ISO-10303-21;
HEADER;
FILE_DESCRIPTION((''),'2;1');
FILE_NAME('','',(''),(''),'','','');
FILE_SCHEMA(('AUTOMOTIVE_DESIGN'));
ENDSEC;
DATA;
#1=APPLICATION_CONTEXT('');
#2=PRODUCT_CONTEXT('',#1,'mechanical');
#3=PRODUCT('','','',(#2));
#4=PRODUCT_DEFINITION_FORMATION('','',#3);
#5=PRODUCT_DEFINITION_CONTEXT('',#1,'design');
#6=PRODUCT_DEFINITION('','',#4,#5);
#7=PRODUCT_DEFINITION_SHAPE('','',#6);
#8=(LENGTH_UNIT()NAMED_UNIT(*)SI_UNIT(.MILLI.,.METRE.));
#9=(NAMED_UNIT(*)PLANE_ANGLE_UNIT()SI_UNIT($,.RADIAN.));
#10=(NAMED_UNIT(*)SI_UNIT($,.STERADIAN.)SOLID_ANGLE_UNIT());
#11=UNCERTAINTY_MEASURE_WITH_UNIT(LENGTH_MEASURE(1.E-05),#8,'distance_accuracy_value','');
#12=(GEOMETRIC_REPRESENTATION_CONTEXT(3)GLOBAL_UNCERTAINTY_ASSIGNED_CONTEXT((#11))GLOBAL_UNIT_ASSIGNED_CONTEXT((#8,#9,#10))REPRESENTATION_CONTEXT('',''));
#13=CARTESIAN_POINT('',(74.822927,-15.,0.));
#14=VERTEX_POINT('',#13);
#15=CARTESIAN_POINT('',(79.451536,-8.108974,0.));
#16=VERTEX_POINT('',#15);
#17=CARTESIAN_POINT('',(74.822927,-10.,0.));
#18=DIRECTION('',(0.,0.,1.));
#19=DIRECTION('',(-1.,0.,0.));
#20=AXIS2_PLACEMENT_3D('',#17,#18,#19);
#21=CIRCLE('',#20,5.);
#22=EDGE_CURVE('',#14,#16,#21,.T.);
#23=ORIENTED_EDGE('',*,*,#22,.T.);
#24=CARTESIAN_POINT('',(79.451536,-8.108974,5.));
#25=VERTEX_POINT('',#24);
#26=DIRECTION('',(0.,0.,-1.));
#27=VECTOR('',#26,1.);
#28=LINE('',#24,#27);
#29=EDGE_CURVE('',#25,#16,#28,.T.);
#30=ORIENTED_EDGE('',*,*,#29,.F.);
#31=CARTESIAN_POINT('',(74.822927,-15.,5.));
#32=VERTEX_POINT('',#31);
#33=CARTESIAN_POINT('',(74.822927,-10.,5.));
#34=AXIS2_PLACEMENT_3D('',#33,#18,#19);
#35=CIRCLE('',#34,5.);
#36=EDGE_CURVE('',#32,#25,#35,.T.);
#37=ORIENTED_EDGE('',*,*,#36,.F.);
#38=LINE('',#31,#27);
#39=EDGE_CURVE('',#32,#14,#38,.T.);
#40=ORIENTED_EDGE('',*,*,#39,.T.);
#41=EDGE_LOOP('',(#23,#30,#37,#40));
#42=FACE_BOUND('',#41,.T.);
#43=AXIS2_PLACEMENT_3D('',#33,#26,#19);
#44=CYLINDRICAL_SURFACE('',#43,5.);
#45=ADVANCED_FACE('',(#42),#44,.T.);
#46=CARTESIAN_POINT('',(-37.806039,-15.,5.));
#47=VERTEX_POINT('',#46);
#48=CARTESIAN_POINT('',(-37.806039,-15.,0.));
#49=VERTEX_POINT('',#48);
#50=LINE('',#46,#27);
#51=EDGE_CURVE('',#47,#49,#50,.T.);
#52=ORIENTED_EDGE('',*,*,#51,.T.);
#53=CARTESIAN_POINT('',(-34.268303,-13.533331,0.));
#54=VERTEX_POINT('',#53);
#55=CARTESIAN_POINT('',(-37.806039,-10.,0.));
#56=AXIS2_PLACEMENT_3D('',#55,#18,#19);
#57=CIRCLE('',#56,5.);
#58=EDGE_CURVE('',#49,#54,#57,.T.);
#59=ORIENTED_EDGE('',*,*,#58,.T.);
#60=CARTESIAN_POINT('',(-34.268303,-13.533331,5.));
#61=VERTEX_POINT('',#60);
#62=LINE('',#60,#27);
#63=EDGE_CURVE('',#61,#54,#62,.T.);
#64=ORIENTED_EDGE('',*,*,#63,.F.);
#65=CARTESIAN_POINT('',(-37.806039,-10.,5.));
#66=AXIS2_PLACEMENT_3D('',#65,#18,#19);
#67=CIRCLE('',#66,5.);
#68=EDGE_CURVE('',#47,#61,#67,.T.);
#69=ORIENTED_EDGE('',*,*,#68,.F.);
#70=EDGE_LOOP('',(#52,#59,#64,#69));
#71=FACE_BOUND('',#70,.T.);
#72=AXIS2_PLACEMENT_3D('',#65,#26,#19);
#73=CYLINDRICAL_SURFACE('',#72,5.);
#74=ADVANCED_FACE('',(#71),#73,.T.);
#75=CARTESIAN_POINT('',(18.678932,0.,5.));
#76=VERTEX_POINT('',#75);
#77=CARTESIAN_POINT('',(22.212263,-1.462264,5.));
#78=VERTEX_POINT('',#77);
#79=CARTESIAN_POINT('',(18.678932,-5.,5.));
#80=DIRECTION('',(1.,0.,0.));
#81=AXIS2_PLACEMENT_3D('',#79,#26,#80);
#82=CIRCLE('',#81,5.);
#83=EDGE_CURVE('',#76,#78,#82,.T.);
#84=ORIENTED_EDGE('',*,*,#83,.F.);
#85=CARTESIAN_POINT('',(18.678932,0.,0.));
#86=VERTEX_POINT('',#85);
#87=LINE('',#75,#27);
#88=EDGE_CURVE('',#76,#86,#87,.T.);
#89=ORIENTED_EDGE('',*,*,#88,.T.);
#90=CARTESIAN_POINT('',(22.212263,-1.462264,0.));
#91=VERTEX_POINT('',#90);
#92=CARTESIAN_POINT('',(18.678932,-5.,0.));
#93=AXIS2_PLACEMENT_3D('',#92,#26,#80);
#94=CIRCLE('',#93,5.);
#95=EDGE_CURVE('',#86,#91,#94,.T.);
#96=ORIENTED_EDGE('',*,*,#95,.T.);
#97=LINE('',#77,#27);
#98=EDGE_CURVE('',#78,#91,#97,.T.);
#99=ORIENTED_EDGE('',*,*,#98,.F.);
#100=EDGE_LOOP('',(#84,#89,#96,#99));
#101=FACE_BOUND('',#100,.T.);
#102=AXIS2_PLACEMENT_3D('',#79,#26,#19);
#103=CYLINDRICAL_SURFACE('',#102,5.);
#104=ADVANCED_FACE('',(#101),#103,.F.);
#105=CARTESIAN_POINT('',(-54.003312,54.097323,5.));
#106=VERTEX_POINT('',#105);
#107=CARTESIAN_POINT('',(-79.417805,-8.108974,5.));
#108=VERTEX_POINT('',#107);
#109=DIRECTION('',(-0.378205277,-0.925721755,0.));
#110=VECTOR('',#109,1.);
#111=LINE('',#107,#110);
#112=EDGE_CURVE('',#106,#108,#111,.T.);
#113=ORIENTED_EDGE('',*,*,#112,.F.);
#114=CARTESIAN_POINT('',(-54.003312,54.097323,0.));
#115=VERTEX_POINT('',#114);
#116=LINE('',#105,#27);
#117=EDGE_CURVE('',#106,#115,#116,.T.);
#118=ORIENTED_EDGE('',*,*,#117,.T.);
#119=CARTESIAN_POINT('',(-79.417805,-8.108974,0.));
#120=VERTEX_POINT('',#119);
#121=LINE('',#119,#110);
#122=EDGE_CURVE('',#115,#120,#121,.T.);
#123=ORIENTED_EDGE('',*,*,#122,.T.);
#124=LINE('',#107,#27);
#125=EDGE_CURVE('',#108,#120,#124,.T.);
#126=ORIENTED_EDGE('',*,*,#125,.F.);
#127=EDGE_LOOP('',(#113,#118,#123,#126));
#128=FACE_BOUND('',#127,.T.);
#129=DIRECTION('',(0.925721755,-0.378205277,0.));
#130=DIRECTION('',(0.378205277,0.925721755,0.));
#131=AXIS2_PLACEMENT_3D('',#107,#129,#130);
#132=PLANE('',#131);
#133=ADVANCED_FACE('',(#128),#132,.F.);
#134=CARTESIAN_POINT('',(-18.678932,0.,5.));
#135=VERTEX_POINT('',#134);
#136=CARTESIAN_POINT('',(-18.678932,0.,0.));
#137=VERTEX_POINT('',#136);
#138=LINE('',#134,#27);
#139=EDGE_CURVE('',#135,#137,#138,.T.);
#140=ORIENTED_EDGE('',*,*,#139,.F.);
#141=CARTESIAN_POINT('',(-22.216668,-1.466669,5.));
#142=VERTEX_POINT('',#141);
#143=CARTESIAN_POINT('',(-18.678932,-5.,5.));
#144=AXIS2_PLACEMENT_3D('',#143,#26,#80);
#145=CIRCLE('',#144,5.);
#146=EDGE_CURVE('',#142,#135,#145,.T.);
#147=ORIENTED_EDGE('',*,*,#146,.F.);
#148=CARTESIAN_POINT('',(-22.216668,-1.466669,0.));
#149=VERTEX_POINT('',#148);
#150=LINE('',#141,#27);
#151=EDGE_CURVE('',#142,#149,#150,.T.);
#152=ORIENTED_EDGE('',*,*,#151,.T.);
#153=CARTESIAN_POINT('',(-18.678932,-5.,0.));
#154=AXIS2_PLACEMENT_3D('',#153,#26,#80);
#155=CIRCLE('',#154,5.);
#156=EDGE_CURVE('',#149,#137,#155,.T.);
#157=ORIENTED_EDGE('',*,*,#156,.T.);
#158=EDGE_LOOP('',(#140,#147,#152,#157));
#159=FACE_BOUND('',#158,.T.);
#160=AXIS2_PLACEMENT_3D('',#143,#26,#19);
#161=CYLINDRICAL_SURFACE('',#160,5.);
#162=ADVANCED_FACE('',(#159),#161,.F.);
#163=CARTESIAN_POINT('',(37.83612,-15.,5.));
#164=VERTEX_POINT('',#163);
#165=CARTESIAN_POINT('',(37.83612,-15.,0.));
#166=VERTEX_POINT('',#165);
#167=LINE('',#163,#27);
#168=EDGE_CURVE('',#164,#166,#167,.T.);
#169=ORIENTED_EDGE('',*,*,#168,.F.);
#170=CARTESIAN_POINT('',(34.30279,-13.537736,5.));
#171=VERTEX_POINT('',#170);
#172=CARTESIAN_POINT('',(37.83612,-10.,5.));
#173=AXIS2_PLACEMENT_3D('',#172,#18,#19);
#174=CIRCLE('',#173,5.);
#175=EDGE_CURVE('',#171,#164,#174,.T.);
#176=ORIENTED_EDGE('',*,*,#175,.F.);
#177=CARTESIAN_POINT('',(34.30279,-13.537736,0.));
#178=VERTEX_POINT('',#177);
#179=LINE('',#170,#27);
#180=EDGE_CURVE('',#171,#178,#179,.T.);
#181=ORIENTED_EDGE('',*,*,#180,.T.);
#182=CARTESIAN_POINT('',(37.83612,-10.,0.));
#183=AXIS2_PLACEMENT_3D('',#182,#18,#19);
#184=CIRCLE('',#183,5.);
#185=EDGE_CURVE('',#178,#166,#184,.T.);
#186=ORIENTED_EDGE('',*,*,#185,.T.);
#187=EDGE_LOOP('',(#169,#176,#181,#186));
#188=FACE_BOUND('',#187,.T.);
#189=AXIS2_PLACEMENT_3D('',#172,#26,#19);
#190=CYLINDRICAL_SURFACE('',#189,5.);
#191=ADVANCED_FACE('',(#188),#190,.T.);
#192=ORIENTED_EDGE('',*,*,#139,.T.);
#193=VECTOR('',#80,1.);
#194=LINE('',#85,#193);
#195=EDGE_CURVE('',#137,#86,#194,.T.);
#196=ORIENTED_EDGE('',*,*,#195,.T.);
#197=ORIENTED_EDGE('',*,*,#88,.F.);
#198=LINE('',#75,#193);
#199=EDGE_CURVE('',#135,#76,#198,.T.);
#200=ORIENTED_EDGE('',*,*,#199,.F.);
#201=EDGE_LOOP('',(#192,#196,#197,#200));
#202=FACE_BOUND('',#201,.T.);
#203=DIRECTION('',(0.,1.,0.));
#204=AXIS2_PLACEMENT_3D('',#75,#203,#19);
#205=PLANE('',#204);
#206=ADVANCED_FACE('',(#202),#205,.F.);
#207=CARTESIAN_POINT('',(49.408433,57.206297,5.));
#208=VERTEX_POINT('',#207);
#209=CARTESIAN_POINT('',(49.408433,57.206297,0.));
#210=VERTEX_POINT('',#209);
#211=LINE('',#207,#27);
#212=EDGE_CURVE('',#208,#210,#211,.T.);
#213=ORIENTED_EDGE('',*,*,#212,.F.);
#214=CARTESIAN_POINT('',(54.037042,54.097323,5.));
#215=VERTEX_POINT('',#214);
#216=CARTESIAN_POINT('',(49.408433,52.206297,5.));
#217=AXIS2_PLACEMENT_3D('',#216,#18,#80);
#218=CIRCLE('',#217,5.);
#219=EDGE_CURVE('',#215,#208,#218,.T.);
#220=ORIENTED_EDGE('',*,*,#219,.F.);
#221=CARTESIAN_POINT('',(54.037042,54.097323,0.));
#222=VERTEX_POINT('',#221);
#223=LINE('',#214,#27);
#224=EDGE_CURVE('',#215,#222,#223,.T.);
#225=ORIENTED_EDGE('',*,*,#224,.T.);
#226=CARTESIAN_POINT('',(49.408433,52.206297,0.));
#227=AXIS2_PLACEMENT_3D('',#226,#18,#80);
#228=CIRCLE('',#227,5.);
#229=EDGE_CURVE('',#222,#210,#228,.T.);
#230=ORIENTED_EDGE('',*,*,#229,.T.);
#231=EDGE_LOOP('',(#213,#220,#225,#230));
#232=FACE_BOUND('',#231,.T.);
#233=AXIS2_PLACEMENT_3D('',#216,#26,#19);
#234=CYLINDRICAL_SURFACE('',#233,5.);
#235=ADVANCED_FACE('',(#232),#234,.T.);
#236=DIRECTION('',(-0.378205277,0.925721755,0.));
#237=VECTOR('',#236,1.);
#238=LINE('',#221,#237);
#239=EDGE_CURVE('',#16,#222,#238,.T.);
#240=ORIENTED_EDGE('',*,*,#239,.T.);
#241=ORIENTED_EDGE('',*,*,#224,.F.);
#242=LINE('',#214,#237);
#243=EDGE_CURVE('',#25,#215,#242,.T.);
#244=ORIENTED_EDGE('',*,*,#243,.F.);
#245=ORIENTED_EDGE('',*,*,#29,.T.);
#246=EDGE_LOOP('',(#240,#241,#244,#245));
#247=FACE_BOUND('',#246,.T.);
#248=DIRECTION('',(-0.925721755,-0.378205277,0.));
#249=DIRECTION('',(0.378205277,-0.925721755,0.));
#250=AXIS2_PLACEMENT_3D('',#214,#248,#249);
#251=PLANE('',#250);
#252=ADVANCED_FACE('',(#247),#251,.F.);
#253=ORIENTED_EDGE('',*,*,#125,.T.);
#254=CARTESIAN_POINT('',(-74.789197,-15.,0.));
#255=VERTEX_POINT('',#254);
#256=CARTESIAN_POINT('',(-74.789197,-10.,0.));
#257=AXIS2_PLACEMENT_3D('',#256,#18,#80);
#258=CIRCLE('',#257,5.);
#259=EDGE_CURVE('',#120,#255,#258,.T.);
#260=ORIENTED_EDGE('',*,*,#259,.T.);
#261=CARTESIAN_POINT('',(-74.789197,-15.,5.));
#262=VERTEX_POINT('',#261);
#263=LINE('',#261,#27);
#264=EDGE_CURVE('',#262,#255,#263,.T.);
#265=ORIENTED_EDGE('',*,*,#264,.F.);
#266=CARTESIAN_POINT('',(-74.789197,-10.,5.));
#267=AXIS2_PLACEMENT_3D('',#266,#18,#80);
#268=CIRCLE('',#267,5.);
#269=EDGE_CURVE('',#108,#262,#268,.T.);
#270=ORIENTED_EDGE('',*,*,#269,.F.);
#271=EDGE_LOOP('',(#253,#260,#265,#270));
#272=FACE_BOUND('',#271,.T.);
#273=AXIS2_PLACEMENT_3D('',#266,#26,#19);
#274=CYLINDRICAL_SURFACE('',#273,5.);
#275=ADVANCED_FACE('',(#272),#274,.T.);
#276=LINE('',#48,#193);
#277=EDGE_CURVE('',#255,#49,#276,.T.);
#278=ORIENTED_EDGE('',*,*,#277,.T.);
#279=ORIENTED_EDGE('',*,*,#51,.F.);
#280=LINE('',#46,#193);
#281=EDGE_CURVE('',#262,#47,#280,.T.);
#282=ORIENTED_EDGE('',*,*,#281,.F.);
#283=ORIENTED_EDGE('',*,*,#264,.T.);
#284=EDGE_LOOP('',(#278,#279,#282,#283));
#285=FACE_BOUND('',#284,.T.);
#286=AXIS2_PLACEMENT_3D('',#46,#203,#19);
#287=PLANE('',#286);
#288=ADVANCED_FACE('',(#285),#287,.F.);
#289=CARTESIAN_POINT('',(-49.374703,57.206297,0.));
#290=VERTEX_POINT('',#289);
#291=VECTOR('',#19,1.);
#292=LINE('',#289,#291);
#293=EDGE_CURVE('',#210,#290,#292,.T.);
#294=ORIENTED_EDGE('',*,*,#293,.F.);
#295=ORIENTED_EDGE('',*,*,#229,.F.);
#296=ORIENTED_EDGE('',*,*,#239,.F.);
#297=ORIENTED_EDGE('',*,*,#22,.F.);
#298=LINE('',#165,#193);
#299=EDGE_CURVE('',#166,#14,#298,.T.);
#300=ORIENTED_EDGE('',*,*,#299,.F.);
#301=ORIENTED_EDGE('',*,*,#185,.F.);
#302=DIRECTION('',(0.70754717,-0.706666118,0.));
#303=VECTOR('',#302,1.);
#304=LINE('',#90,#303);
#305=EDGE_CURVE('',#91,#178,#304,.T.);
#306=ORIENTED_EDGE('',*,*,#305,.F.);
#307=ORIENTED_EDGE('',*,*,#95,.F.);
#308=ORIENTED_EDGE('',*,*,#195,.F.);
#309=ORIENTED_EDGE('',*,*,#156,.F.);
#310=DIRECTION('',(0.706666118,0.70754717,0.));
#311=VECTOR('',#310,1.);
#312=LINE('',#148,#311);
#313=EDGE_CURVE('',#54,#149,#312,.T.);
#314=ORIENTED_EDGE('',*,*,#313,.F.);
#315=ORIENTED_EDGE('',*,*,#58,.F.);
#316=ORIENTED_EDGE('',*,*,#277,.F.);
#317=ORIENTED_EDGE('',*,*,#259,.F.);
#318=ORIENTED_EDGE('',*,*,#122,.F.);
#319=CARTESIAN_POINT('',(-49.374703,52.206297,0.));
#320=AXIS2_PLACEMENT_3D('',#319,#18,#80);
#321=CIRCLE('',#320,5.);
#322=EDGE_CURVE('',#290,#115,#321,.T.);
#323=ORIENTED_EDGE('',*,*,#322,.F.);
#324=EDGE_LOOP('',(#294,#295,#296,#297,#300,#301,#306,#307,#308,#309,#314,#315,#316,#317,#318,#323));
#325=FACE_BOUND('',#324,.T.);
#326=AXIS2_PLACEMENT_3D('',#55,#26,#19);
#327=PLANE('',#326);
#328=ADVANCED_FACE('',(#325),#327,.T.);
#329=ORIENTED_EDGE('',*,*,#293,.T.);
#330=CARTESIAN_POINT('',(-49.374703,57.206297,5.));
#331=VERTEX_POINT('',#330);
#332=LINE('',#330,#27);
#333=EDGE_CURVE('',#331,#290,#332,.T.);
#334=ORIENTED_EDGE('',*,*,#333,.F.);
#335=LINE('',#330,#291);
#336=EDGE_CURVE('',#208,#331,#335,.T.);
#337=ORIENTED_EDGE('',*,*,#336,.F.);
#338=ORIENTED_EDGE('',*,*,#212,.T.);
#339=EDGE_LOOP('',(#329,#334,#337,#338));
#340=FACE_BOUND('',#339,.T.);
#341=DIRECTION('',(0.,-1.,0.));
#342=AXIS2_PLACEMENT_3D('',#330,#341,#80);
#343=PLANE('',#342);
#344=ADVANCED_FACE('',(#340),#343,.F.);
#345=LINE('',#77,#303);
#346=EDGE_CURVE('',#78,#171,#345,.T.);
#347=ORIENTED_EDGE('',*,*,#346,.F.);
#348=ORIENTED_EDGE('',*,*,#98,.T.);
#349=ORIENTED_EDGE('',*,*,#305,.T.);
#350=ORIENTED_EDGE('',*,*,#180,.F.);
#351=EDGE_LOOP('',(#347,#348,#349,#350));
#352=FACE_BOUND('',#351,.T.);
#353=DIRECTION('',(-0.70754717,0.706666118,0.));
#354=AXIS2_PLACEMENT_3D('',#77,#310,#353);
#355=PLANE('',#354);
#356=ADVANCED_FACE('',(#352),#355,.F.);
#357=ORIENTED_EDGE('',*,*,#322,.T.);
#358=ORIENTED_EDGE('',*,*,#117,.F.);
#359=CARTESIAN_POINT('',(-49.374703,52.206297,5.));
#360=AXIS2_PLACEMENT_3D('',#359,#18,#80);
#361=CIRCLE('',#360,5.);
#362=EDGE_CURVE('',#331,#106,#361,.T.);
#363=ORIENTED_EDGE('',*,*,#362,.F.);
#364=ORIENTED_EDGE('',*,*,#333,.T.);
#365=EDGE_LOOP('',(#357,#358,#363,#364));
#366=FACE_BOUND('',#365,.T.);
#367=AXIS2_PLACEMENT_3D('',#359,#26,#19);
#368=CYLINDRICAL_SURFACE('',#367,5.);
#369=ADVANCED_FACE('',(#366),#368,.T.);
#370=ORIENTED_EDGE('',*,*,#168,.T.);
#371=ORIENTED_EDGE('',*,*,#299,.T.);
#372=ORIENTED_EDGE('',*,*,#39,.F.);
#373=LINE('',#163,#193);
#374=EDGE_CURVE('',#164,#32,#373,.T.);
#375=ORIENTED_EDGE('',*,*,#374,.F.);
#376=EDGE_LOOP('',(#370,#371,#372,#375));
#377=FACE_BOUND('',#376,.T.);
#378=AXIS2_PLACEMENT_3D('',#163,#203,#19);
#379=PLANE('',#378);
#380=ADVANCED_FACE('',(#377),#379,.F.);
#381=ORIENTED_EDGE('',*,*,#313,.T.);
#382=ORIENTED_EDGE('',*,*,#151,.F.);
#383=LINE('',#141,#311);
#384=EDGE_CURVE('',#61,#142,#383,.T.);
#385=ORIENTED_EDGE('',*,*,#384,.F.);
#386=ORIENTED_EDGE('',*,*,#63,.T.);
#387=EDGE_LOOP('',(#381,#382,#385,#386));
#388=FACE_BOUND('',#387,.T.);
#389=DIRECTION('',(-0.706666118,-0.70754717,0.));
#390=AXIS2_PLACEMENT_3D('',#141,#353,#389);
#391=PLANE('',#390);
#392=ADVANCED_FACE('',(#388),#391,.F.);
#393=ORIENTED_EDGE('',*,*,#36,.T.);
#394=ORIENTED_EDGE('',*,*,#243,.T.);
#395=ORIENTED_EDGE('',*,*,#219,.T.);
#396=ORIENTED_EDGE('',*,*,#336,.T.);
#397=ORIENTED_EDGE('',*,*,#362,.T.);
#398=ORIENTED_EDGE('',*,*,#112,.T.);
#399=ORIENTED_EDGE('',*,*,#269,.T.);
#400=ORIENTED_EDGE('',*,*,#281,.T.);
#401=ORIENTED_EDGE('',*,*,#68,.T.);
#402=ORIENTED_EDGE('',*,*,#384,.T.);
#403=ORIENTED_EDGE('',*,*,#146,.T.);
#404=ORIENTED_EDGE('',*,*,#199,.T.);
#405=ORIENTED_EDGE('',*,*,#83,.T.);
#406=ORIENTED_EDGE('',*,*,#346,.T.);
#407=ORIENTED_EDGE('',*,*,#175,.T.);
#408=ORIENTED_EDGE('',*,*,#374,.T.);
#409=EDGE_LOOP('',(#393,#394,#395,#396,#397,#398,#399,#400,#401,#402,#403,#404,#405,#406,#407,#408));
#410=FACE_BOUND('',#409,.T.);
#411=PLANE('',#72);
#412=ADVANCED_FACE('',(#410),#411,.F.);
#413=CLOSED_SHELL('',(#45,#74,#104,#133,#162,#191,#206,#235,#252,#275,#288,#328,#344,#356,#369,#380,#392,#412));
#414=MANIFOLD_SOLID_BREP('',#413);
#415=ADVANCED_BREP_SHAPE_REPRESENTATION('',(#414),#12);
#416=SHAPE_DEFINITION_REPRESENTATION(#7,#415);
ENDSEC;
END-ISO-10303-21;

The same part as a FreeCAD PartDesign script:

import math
import FreeCAD as App
import Part
import Sketcher
Q = App.Units.Quantity

doc = App.newDocument("Part")
body = doc.addObject("PartDesign::Body", "Body")

# Sketch on XY plane
sketch1 = doc.addObject("Sketcher::SketchObject", "Sketch")
body.addObject(sketch1)
sketch1.AttachmentSupport = (doc.XY_Plane, [""])
sketch1.MapMode = "FlatFace"
sketch1.addGeometry([
    Part.LineSegment(App.Vector(-18.678932, 0, 0), App.Vector(18.678932, 0, 0)),  # 0
    Part.ArcOfCircle(Part.Circle(App.Vector(18.678932, -5, 0), App.Vector(0, 0, 1), 5), math.radians(45.035695), math.radians(90)),  # 1
    Part.LineSegment(App.Vector(22.212263, -1.462264, 0), App.Vector(34.30279, -13.537736, 0)),  # 2
    Part.ArcOfCircle(Part.Circle(App.Vector(37.83612, -10, 0), App.Vector(0, 0, 1), 5), math.radians(-134.964305), math.radians(-90)),  # 3
    Part.LineSegment(App.Vector(37.83612, -15, 0), App.Vector(74.822927, -15, 0)),  # 4
    Part.ArcOfCircle(Part.Circle(App.Vector(74.822927, -10, 0), App.Vector(0, 0, 1), 5), math.radians(-90), math.radians(22.222558)),  # 5
    Part.LineSegment(App.Vector(79.451536, -8.108974, 0), App.Vector(54.037042, 54.097323, 0)),  # 6
    Part.ArcOfCircle(Part.Circle(App.Vector(49.408433, 52.206297, 0), App.Vector(0, 0, 1), 5), math.radians(22.222558), math.radians(90)),  # 7
    Part.LineSegment(App.Vector(49.408433, 57.206297, 0), App.Vector(-49.374703, 57.206297, 0)),  # 8
    Part.ArcOfCircle(Part.Circle(App.Vector(-49.374703, 52.206297, 0), App.Vector(0, 0, 1), 5), math.radians(90), math.radians(157.777442)),  # 9
    Part.LineSegment(App.Vector(-54.003312, 54.097323, 0), App.Vector(-79.417805, -8.108974, 0)),  # 10
    Part.ArcOfCircle(Part.Circle(App.Vector(-74.789197, -10, 0), App.Vector(0, 0, 1), 5), math.radians(157.777442), math.radians(270)),  # 11
    Part.LineSegment(App.Vector(-74.789197, -15, 0), App.Vector(-37.806039, -15, 0)),  # 12
    Part.ArcOfCircle(Part.Circle(App.Vector(-37.806039, -10, 0), App.Vector(0, 0, 1), 5), math.radians(-90), math.radians(-44.964305)),  # 13
    Part.LineSegment(App.Vector(-34.268303, -13.533331, 0), App.Vector(-22.216668, -1.466669, 0)),  # 14
    Part.ArcOfCircle(Part.Circle(App.Vector(-18.678932, -5, 0), App.Vector(0, 0, 1), 5), math.radians(90), math.radians(135.035695)),  # 15
], False)
sketch1.addConstraint([
    Sketcher.Constraint("Tangent", 0, 2, 1, 2),
    Sketcher.Constraint("Tangent", 1, 1, 2, 1),
    Sketcher.Constraint("Tangent", 2, 2, 3, 1),
    Sketcher.Constraint("Tangent", 3, 2, 4, 1),
    Sketcher.Constraint("Tangent", 4, 2, 5, 1),
    Sketcher.Constraint("Tangent", 5, 2, 6, 1),
    Sketcher.Constraint("Tangent", 6, 2, 7, 1),
    Sketcher.Constraint("Tangent", 7, 2, 8, 1),
    Sketcher.Constraint("Tangent", 8, 2, 9, 1),
    Sketcher.Constraint("Tangent", 9, 2, 10, 1),
    Sketcher.Constraint("Tangent", 10, 2, 11, 1),
    Sketcher.Constraint("Tangent", 11, 2, 12, 1),
    Sketcher.Constraint("Tangent", 12, 2, 13, 1),
    Sketcher.Constraint("Tangent", 13, 2, 14, 1),
    Sketcher.Constraint("Tangent", 14, 2, 15, 2),
    Sketcher.Constraint("Tangent", 15, 1, 0, 1),
    Sketcher.Constraint("Horizontal", 0),
    Sketcher.Constraint("Horizontal", 4),
    Sketcher.Constraint("Horizontal", 8),
    Sketcher.Constraint("Horizontal", 12),
    Sketcher.Constraint("Equal", 1, 3),
    Sketcher.Constraint("Equal", 3, 5),
    Sketcher.Constraint("Equal", 5, 7),
    Sketcher.Constraint("Equal", 7, 9),
    Sketcher.Constraint("Equal", 9, 11),
    Sketcher.Constraint("Equal", 11, 13),
    Sketcher.Constraint("Equal", 13, 15),
    Sketcher.Constraint("Symmetric", 0, 2, 15, 1, -1, 1),
    Sketcher.Constraint("Perpendicular", 2, 14),
    Sketcher.Constraint("Horizontal", 5, 3, 11, 3),
    Sketcher.Constraint("Horizontal", 6, 2, 9, 2),
    Sketcher.Constraint("Radius", 1, Q("5 mm")),
    Sketcher.Constraint("DistanceY", 3, 3, -1, 1, Q("10 mm")),
    Sketcher.Constraint("DistanceX", 1, 3, 7, 3, Q("30.729501 mm")),
    Sketcher.Constraint("DistanceX", 14, 2, 0, 2, Q("40.8956 mm")),
    Sketcher.Constraint("Distance", 6, Q("67.197618 mm")),
    Sketcher.Constraint("DistanceX", 0, 1, 0, 2, Q("37.357864 mm")),
    Sketcher.Constraint("DistanceX", 4, 1, 4, 2, Q("36.986807 mm")),
    Sketcher.Constraint("DistanceX", 8, 2, 8, 1, Q("98.783136 mm")),
])
pad1 = doc.addObject("PartDesign::Pad", "Pad")
body.addObject(pad1)
pad1.Profile = sketch1
pad1.Length = 5

doc.recompute()
